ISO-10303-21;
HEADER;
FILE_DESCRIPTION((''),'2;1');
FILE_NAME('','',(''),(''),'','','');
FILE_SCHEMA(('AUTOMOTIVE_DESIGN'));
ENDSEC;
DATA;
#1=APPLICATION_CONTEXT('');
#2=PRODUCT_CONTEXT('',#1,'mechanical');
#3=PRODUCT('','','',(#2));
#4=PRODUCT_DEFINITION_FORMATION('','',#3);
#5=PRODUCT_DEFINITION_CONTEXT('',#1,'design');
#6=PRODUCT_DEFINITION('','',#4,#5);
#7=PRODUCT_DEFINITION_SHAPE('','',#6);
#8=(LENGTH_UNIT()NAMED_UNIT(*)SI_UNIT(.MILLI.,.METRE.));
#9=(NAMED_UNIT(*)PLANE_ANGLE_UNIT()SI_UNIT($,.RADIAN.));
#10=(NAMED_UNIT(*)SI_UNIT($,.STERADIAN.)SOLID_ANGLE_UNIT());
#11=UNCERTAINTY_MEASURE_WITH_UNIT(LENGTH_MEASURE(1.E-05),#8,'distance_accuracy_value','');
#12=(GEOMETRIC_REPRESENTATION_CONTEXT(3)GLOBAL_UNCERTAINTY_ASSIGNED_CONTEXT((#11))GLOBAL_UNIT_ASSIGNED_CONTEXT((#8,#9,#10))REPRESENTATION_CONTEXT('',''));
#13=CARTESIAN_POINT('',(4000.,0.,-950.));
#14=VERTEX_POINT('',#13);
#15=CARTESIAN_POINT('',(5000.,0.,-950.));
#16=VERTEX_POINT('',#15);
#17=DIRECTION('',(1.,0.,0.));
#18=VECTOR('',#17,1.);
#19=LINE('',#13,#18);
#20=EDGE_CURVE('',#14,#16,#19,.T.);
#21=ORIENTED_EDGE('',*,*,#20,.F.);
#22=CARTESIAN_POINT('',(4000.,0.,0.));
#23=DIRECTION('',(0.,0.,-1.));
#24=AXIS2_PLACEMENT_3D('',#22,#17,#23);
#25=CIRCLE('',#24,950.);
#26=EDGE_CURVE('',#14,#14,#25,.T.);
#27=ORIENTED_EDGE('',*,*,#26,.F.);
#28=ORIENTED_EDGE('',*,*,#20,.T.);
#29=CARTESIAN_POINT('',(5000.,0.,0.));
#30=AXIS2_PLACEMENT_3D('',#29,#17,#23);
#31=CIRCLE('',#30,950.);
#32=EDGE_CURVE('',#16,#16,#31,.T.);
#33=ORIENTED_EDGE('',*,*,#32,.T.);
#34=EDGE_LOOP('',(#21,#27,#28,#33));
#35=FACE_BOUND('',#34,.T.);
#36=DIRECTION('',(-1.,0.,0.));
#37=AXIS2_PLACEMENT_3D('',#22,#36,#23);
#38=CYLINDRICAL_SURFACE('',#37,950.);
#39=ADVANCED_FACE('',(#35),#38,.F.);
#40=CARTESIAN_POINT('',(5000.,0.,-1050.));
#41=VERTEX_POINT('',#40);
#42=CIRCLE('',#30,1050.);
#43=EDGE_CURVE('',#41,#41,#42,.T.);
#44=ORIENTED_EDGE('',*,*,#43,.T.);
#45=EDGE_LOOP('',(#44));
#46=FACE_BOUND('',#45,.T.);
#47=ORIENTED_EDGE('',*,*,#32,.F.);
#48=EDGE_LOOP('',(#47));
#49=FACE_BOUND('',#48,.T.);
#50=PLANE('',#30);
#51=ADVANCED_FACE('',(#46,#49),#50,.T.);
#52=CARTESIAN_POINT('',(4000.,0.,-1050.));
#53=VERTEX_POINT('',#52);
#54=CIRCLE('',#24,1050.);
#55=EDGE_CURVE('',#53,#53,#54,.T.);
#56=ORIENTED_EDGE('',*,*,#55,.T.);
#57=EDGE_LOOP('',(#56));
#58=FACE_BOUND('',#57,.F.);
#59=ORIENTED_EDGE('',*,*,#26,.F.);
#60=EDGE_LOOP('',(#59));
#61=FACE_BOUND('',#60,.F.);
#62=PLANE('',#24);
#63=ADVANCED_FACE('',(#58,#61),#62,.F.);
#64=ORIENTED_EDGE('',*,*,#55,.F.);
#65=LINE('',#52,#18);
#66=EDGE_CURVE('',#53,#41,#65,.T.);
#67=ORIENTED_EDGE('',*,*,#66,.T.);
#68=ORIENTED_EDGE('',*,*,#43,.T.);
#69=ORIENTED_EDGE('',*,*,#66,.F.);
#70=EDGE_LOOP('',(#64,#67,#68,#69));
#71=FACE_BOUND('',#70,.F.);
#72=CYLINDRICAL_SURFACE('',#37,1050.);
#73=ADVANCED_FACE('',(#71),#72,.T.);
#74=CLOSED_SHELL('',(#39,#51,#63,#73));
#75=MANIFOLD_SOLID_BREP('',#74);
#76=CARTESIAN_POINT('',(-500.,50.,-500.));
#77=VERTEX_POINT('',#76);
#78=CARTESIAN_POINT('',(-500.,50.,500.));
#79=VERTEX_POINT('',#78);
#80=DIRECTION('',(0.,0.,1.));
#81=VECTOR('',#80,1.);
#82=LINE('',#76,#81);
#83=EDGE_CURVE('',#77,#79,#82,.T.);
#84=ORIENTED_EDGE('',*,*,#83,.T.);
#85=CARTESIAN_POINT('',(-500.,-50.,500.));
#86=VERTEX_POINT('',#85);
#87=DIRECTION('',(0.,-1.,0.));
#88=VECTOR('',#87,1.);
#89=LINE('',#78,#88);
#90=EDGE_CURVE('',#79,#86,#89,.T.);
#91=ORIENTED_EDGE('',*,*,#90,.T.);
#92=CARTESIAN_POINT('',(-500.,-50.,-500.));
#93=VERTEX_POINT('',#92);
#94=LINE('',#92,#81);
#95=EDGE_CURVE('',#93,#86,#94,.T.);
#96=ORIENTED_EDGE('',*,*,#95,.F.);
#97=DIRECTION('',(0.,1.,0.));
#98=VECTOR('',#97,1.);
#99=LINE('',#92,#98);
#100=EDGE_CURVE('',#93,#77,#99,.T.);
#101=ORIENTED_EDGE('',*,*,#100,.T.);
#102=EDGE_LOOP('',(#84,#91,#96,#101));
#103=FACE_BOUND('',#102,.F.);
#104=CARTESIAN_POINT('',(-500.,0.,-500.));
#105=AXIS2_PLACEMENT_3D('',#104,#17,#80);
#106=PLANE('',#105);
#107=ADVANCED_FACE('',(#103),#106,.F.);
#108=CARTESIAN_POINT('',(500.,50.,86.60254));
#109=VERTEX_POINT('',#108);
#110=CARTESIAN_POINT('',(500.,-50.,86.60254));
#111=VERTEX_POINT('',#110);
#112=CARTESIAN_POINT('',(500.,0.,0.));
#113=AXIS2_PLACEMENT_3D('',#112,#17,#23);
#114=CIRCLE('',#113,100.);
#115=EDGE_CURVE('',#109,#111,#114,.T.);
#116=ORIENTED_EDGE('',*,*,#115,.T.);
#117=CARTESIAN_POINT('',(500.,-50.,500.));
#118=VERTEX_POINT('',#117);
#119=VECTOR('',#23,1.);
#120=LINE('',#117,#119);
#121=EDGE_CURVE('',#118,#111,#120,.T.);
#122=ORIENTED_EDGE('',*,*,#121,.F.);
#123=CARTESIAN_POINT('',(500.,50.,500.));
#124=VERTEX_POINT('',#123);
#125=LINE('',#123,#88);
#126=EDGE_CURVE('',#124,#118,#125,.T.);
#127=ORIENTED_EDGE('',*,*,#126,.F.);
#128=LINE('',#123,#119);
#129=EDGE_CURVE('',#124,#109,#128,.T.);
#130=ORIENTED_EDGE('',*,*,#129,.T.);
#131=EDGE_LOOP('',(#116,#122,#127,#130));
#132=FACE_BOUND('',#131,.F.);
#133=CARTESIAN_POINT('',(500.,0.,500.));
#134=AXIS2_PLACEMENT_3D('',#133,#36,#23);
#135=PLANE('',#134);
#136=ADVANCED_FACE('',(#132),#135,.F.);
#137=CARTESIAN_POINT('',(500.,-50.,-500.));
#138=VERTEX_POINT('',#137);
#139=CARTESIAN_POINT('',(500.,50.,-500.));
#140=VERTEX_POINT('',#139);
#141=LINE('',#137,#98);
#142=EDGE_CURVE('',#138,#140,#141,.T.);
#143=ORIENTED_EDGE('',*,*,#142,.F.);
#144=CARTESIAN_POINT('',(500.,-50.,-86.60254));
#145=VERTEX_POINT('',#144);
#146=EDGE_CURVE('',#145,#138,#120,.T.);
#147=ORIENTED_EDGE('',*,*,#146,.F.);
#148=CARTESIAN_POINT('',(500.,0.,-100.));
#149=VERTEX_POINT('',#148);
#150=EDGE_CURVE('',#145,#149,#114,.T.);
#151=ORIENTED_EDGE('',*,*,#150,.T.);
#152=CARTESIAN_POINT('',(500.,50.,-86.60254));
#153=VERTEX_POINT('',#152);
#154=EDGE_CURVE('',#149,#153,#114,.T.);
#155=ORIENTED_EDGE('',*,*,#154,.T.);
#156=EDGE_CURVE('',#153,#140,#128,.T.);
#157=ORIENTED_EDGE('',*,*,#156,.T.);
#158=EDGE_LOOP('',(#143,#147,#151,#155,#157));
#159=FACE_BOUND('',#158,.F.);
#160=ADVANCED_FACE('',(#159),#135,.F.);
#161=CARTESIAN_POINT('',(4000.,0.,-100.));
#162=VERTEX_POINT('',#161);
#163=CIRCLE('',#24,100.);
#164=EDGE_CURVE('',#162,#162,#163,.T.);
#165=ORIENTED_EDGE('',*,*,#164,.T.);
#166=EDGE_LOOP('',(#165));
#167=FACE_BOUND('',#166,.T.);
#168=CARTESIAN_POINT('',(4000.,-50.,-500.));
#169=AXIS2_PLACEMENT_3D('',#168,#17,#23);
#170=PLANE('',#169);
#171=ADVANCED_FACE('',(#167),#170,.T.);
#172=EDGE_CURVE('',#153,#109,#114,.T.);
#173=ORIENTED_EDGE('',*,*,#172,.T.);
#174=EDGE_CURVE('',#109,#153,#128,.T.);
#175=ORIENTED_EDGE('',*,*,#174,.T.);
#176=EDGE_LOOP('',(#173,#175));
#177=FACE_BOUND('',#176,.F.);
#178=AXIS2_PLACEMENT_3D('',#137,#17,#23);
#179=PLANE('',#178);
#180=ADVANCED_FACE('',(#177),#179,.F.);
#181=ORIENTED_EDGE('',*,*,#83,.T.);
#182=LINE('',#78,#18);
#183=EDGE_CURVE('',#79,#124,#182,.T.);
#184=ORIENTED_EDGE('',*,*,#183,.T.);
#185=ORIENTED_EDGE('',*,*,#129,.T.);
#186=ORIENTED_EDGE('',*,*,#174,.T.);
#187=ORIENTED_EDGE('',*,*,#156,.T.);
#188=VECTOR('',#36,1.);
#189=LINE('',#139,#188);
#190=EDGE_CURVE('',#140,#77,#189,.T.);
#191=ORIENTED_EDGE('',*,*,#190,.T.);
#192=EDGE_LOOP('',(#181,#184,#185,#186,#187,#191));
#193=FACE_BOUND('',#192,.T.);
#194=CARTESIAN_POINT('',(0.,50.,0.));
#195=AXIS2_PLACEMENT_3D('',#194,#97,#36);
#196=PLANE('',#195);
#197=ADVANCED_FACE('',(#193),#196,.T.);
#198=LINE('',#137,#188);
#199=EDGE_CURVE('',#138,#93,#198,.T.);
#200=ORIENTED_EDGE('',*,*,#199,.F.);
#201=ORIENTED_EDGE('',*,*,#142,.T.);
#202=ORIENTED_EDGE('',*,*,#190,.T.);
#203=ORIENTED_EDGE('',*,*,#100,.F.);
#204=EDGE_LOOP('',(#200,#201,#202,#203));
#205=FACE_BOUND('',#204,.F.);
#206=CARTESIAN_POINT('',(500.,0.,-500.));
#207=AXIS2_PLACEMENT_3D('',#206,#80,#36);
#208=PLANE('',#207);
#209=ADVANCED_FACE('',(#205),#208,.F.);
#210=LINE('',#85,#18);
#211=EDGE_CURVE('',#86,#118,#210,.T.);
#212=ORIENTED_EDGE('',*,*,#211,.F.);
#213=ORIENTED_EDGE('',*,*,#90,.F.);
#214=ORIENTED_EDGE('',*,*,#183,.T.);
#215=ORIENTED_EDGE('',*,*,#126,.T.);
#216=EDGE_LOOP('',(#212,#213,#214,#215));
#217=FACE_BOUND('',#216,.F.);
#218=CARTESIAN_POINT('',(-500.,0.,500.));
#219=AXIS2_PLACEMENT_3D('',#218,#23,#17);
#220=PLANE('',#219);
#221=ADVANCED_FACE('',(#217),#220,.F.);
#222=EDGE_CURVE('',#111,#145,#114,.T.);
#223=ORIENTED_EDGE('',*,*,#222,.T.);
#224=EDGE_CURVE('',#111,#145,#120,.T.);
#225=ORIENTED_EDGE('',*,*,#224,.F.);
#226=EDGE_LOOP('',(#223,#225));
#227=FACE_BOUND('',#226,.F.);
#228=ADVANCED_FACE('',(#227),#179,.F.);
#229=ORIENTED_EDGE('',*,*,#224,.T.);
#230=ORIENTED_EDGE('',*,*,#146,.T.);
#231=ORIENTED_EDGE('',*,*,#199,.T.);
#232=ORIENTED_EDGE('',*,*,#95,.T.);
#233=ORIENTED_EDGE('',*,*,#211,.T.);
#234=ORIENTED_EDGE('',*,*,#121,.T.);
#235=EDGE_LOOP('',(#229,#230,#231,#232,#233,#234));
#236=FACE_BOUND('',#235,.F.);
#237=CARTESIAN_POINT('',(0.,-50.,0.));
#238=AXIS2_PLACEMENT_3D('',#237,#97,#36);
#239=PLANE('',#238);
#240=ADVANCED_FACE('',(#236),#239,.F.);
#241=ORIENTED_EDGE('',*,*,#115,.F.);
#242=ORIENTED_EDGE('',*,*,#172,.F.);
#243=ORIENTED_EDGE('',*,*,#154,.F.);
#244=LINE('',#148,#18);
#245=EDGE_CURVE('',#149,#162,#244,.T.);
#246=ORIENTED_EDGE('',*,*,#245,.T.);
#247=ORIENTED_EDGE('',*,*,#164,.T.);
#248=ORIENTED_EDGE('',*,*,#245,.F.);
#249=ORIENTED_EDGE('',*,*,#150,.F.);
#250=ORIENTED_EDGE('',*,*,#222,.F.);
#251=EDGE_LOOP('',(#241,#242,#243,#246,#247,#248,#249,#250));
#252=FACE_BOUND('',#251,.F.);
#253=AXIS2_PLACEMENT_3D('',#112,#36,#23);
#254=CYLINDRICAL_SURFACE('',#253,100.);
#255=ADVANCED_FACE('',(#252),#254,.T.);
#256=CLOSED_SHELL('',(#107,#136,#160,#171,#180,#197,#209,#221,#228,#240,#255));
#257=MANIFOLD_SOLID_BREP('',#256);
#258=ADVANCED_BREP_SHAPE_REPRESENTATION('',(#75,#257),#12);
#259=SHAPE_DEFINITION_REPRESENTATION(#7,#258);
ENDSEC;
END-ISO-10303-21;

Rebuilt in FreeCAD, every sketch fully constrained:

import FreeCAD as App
import Part
import Sketcher


def add_polygon(sketch, points):
    """Adds a closed chain of lines whose ends are joined by coincident constraints."""
    first, n = sketch.GeometryCount, len(points)
    for a, b in zip(points, points[1:] + points[:1]):
        sketch.addGeometry(Part.LineSegment(App.Vector(*a, 0), App.Vector(*b, 0)), False)
    for i in range(n):
        sketch.addConstraint(Sketcher.Constraint("Coincident", first + i, 2, first + (i + 1) % n, 1))

doc = App.newDocument("Part")
body = doc.addObject("PartDesign::Body", "Body")
body.AllowCompound = True

sketch1 = doc.addObject("Sketcher::SketchObject", "Sketch")
body.addObject(sketch1)
sketch1.AttachmentSupport = (doc.XZ_Plane, [""])
sketch1.MapMode = "FlatFace"
add_polygon(sketch1, [(500, 500), (500, -500), (-500, -500), (-500, 500)])
sketch1.addConstraint(Sketcher.Constraint("Vertical", 0))
sketch1.addConstraint(Sketcher.Constraint("Horizontal", 1))
sketch1.addConstraint(Sketcher.Constraint("Vertical", 2))
sketch1.addConstraint(Sketcher.Constraint("Horizontal", 3))
sketch1.addConstraint(Sketcher.Constraint("Symmetric", 0, 2, 2, 2, -1, 1))
sketch1.addConstraint(Sketcher.Constraint("Equal", 3, 0))
sketch1.addConstraint(Sketcher.Constraint("DistanceX", 1, 2, 1, 1, 1000.0))
pad1 = doc.addObject("PartDesign::Pad", "Pad")
body.addObject(pad1)
pad1.Profile = sketch1
pad1.Length = 100
pad1.Midplane = True

sketch2 = doc.addObject("Sketcher::SketchObject", "Sketch001")
body.addObject(sketch2)
sketch2.AttachmentSupport = (doc.YZ_Plane, [""])
sketch2.MapMode = "FlatFace"
sketch2.AttachmentOffset = App.Placement(App.Vector(0, 0, 500), App.Rotation())
sketch2.addGeometry(Part.Circle(App.Vector(0, 0, 0), App.Vector(0, 0, 1), 100), False)
sketch2.addConstraint(Sketcher.Constraint("Coincident", 0, 3, -1, 1))
sketch2.addConstraint(Sketcher.Constraint("Diameter", 0, 200.0))
pad2 = doc.addObject("PartDesign::Pad", "Pad001")
body.addObject(pad2)
pad2.Profile = sketch2
pad2.Length = 3500

sketch3 = doc.addObject("Sketcher::SketchObject", "Sketch002")
body.addObject(sketch3)
sketch3.AttachmentSupport = (doc.YZ_Plane, [""])
sketch3.MapMode = "FlatFace"
sketch3.AttachmentOffset = App.Placement(App.Vector(0, 0, 4000), App.Rotation())
sketch3.addGeometry(Part.Circle(App.Vector(0, 0, 0), App.Vector(0, 0, 1), 1050), False)
sketch3.addGeometry(Part.Circle(App.Vector(0, 0, 0), App.Vector(0, 0, 1), 950), False)
sketch3.addConstraint(Sketcher.Constraint("Coincident", 0, 3, -1, 1))
sketch3.addConstraint(Sketcher.Constraint("Coincident", 1, 3, -1, 1))
sketch3.addConstraint(Sketcher.Constraint("Diameter", 0, 2100.0))
sketch3.addConstraint(Sketcher.Constraint("Diameter", 1, 1900.0))
pad3 = doc.addObject("PartDesign::Pad", "Pad002")
body.addObject(pad3)
pad3.Profile = sketch3
pad3.Length = 1000

doc.recompute()
